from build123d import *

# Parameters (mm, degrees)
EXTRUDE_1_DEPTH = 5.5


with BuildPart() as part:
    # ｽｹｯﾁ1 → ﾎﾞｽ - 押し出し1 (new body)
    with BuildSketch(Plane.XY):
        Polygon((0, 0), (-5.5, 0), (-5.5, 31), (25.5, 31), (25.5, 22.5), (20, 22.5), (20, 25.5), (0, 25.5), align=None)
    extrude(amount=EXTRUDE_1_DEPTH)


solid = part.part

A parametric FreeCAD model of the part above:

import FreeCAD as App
import Part
import Sketcher

V = App.Vector
Q = App.Units.Quantity


def add_polygon(sketch, points):
    """Adds a closed chain of lines whose ends are joined by coincident constraints."""
    first, n = sketch.GeometryCount, len(points)
    for a, b in zip(points, points[1:] + points[:1]):
        sketch.addGeometry(Part.LineSegment(App.Vector(*a, 0), App.Vector(*b, 0)), False)
    for i in range(n):
        sketch.addConstraint(Sketcher.Constraint("Coincident", first + i, 2, first + (i + 1) % n, 1))

doc = App.newDocument("Part")
body = doc.addObject("PartDesign::Body", "Body")

sketch1 = body.newObject("Sketcher::SketchObject", "Sketch")
sketch1.AttachmentSupport = (doc.getObject("XY_Plane"), [""])
sketch1.MapMode = "FlatFace"
add_polygon(sketch1, [(-5.5, 0), (0, 0), (0, 25.5), (20, 25.5), (20, 22.5), (25.5, 22.5), (25.5, 31), (-5.5, 31)])
sketch1.addConstraint([
    Sketcher.Constraint("Horizontal", 0),
    Sketcher.Constraint("Vertical", 1),
    Sketcher.Constraint("Horizontal", 2),
    Sketcher.Constraint("Vertical", 3),
    Sketcher.Constraint("Horizontal", 4),
    Sketcher.Constraint("Vertical", 5),
    Sketcher.Constraint("Horizontal", 6),
    Sketcher.Constraint("Vertical", 7),
    Sketcher.Constraint("Coincident", 0, 2, -1, 1),
    Sketcher.Constraint("Equal", 0, 4),
    Sketcher.Constraint("Equal", 6, 7),
    Sketcher.Constraint("DistanceX", 2, 1, 2, 2, Q("20 mm")),
    Sketcher.Constraint("DistanceX", 6, 2, 6, 1, Q("31 mm")),
    Sketcher.Constraint("DistanceY", 3, 2, 3, 1, Q("3 mm")),
    Sketcher.Constraint("DistanceY", 1, 1, 1, 2, Q("25.5 mm")),
])
pad1 = body.newObject("PartDesign::Pad", "Pad")
pad1.Profile = sketch1
pad1.Length = 5.5

doc.recompute()
